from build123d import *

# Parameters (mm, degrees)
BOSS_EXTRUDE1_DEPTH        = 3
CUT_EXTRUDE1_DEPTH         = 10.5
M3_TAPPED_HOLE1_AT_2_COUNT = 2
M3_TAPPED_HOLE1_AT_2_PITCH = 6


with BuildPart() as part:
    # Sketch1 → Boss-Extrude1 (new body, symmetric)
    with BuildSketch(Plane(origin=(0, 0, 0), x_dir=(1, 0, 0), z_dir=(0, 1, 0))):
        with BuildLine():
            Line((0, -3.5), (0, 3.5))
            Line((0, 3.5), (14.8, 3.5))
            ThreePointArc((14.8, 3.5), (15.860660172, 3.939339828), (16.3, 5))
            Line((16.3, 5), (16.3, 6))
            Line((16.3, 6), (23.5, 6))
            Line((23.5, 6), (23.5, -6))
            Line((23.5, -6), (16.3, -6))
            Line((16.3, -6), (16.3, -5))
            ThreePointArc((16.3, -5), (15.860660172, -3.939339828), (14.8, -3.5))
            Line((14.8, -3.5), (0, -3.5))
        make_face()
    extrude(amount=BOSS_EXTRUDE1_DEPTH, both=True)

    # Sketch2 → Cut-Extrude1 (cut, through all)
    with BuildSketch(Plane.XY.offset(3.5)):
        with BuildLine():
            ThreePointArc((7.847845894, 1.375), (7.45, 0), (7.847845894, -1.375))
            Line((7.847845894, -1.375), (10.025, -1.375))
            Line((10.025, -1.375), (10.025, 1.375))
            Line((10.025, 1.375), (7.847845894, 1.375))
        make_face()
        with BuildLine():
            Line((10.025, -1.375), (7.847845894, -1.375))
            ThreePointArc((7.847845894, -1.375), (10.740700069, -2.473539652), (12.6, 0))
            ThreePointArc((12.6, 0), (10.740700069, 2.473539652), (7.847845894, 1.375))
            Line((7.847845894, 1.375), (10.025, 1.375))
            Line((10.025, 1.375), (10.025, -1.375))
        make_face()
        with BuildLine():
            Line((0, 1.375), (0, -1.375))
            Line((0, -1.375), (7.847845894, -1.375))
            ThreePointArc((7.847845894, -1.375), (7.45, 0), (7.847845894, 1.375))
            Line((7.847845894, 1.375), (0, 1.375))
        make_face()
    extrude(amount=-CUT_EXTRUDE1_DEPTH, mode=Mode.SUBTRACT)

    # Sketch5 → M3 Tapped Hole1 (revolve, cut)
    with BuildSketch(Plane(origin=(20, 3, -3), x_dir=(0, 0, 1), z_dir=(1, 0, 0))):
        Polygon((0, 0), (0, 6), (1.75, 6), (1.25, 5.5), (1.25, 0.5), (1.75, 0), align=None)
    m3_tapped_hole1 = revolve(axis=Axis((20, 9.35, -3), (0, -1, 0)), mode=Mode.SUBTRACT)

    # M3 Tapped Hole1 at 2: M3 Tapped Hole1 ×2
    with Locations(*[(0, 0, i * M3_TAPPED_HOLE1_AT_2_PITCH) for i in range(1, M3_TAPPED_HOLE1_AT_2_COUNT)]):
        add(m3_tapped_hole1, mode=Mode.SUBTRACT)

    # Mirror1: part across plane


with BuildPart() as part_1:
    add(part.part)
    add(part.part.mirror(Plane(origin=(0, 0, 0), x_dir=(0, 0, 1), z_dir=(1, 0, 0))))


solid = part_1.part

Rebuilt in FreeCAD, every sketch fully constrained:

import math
import FreeCAD as App
import Part
import Sketcher

V = App.Vector
Q = App.Units.Quantity


def add_polygon(sketch, points):
    """Adds a closed chain of lines whose ends are joined by coincident constraints."""
    first, n = sketch.GeometryCount, len(points)
    for a, b in zip(points, points[1:] + points[:1]):
        sketch.addGeometry(Part.LineSegment(App.Vector(*a, 0), App.Vector(*b, 0)), False)
    for i in range(n):
        sketch.addConstraint(Sketcher.Constraint("Coincident", first + i, 2, first + (i + 1) % n, 1))

doc = App.newDocument("Part")
body = doc.addObject("PartDesign::Body", "Body")

# Sketch on XZ plane
sketch1 = body.newObject("Sketcher::SketchObject", "Sketch")
sketch1.AttachmentSupport = (doc.getObject("XZ_Plane"), [""])
sketch1.MapMode = "FlatFace"
sketch1.addGeometry([
    Part.LineSegment(V(0, -3.5, 0), V(0, 3.5, 0)),  # 0
    Part.LineSegment(V(0, 3.5, 0), V(14.8, 3.5, 0)),  # 1
    Part.ArcOfCircle(Part.Circle(V(14.8, 5, 0), V(0, 0, 1), 1.5), math.radians(-90), math.radians(0)),  # 2
    Part.LineSegment(V(16.3, 5, 0), V(16.3, 6, 0)),  # 3
    Part.LineSegment(V(16.3, 6, 0), V(23.5, 6, 0)),  # 4
    Part.LineSegment(V(23.5, 6, 0), V(23.5, -6, 0)),  # 5
    Part.LineSegment(V(23.5, -6, 0), V(16.3, -6, 0)),  # 6
    Part.LineSegment(V(16.3, -6, 0), V(16.3, -5, 0)),  # 7
    Part.ArcOfCircle(Part.Circle(V(14.8, -5, 0), V(0, 0, 1), 1.5), math.radians(0), math.radians(90)),  # 8
    Part.LineSegment(V(14.8, -3.5, 0), V(0, -3.5, 0)),  # 9
], False)
sketch1.addConstraint([
    Sketcher.Constraint("Coincident", 0, 2, 1, 1),
    Sketcher.Constraint("Tangent", 1, 2, 2, 1),
    Sketcher.Constraint("Tangent", 2, 2, 3, 1),
    Sketcher.Constraint("Coincident", 3, 2, 4, 1),
    Sketcher.Constraint("Coincident", 4, 2, 5, 1),
    Sketcher.Constraint("Coincident", 5, 2, 6, 1),
    Sketcher.Constraint("Coincident", 6, 2, 7, 1),
    Sketcher.Constraint("Tangent", 7, 2, 8, 1),
    Sketcher.Constraint("Tangent", 8, 2, 9, 1),
    Sketcher.Constraint("Coincident", 9, 2, 0, 1),
    Sketcher.Constraint("Vertical", 0),
    Sketcher.Constraint("Horizontal", 1),
    Sketcher.Constraint("Vertical", 3),
    Sketcher.Constraint("Horizontal", 4),
    Sketcher.Constraint("Vertical", 5),
    Sketcher.Constraint("Horizontal", 6),
    Sketcher.Constraint("Vertical", 7),
    Sketcher.Constraint("Horizontal", 9),
    Sketcher.Constraint("Equal", 2, 8),
    Sketcher.Constraint("Symmetric", 0, 2, 9, 2, -1, 1),
    Sketcher.Constraint("Symmetric", 3, 2, 6, 2, -1),
    Sketcher.Constraint("Radius", 2, Q("1.5 mm")),
    Sketcher.Constraint("DistanceY", 0, 1, 0, 2, Q("7 mm")),
    Sketcher.Constraint("DistanceY", 3, 1, 3, 2, Q("1 mm")),
    Sketcher.Constraint("DistanceX", 1, 1, 1, 2, Q("14.8 mm")),
    Sketcher.Constraint("DistanceX", 4, 1, 4, 2, Q("7.2 mm")),
])
pad1 = body.newObject("PartDesign::Pad", "Pad")
pad1.Profile = sketch1
pad1.Length = 6
pad1.Midplane = True

# Sketch on XY plane
sketch2 = body.newObject("Sketcher::SketchObject", "Sketch001")
sketch2.AttachmentSupport = (doc.getObject("XY_Plane"), [""])
sketch2.MapMode = "FlatFace"
sketch2.AttachmentOffset = App.Placement(V(0, 0, 3.5), App.Rotation())
sketch2.addGeometry([
    Part.ArcOfCircle(Part.Circle(V(10, 0, 0), V(0, 0, 1), 2.6), math.radians(-148), math.radians(0)),  # 0
    Part.ArcOfCircle(Part.Circle(V(10, 0, 0), V(0, 0, 1), 2.6), math.radians(0), math.radians(148)),  # 1
    Part.LineSegment(V(7.8, 1.4, 0), V(0, 1.4, 0)),  # 2
    Part.LineSegment(V(0, 1.4, 0), V(0, -1.4, 0)),  # 3
    Part.LineSegment(V(0, -1.4, 0), V(7.8, -1.4, 0)),  # 4
], False)
sketch2.addConstraint([
    Sketcher.Constraint("Tangent", 0, 2, 1, 1),
    Sketcher.Constraint("Coincident", 1, 2, 2, 1),
    Sketcher.Constraint("Coincident", 2, 2, 3, 1),
    Sketcher.Constraint("Coincident", 3, 2, 4, 1),
    Sketcher.Constraint("Coincident", 4, 2, 0, 1),
    Sketcher.Constraint("Horizontal", 2),
    Sketcher.Constraint("Vertical", 3),
    Sketcher.Constraint("Horizontal", 4),
    Sketcher.Constraint("Equal", 0, 1),
    Sketcher.Constraint("Symmetric", 2, 2, 3, 2, -1, 1),
    Sketcher.Constraint("PointOnObject", 0, 3, -1),
    Sketcher.Constraint("PointOnObject", 0, 2, -1),
    Sketcher.Constraint("Radius", 0, Q("2.575 mm")),
    Sketcher.Constraint("DistanceY", 3, 2, 3, 1, Q("2.75 mm")),
    Sketcher.Constraint("DistanceX", -1, 1, 0, 2, Q("12.6 mm")),
])
pocket1 = body.newObject("PartDesign::Pocket", "Pocket")
pocket1.Profile = sketch2
pocket1.Type = "ThroughAll"

# Sketch on YZ plane
sketch3 = body.newObject("Sketcher::SketchObject", "Sketch002")
sketch3.AttachmentSupport = (doc.getObject("YZ_Plane"), [""])
sketch3.MapMode = "FlatFace"
sketch3.AttachmentOffset = App.Placement(V(0, 0, 20), App.Rotation())
add_polygon(sketch3, [(-3, -3), (3, -3), (3, -1.2), (2.5, -1.8), (-2.5, -1.8), (-3, -1.2)])  # lines 0-5
sketch3.addGeometry(Part.LineSegment(V(3, -3, 0), V(-3, -3, 0)), True)  # axis
sketch3.addConstraint([
    Sketcher.Constraint("Horizontal", 0),
    Sketcher.Constraint("Vertical", 1),
    Sketcher.Constraint("Horizontal", 3),
    Sketcher.Constraint("Vertical", 5),
    Sketcher.Constraint("Horizontal", 6),
    Sketcher.Constraint("Coincident", 6, 1, 0, 2),
    Sketcher.Constraint("Symmetric", 1, 2, 4, 2, -2),
    Sketcher.Constraint("Perpendicular", 2, 4),
    Sketcher.Constraint("Vertical", 4, 2, 6, 2),
    Sketcher.Constraint("Equal", 2, 4),
    Sketcher.Constraint("DistanceX", 0, 1, 0, 2, Q("6 mm")),
    Sketcher.Constraint("DistanceX", 3, 2, 3, 1, Q("5 mm")),
    Sketcher.Constraint("DistanceY", 0, 2, -1, 1, Q("3 mm")),
    Sketcher.Constraint("DistanceY", 1, 1, 1, 2, Q("1.75 mm")),
])
groove = body.newObject("PartDesign::Groove", "Groove")
groove.Profile = sketch3
groove.ReferenceAxis = (sketch3, ["Axis0"])
groove.Angle = 360
doc.recompute()

linearpattern = body.newObject("PartDesign::LinearPattern", "LinearPattern")
linearpattern.Originals = [groove]
linearpattern.Direction = (doc.getObject("Z_Axis"), [""])
linearpattern.Mode = "offset"
linearpattern.Offset = 6
linearpattern.Occurrences = 2
body.Tip = linearpattern
body2 = doc.addObject("PartDesign::Body", "Body001")
doc.recompute()

body2.BaseFeature = body
doc.recompute()

mirroring = doc.addObject("Part::Mirroring", "Mirroring")
mirroring.Source = body
mirroring.Base = V(0, 0, 0)
mirroring.Normal = V(1, 0, 0)
body3 = doc.addObject("PartDesign::Body", "Body002")
body3.BaseFeature = mirroring
boolean = body2.newObject("PartDesign::Boolean", "Boolean")
boolean.Type = "Fuse"
boolean.addObjects([body3])
doc.recompute()
mirroring.Visibility = False

doc.recompute()
